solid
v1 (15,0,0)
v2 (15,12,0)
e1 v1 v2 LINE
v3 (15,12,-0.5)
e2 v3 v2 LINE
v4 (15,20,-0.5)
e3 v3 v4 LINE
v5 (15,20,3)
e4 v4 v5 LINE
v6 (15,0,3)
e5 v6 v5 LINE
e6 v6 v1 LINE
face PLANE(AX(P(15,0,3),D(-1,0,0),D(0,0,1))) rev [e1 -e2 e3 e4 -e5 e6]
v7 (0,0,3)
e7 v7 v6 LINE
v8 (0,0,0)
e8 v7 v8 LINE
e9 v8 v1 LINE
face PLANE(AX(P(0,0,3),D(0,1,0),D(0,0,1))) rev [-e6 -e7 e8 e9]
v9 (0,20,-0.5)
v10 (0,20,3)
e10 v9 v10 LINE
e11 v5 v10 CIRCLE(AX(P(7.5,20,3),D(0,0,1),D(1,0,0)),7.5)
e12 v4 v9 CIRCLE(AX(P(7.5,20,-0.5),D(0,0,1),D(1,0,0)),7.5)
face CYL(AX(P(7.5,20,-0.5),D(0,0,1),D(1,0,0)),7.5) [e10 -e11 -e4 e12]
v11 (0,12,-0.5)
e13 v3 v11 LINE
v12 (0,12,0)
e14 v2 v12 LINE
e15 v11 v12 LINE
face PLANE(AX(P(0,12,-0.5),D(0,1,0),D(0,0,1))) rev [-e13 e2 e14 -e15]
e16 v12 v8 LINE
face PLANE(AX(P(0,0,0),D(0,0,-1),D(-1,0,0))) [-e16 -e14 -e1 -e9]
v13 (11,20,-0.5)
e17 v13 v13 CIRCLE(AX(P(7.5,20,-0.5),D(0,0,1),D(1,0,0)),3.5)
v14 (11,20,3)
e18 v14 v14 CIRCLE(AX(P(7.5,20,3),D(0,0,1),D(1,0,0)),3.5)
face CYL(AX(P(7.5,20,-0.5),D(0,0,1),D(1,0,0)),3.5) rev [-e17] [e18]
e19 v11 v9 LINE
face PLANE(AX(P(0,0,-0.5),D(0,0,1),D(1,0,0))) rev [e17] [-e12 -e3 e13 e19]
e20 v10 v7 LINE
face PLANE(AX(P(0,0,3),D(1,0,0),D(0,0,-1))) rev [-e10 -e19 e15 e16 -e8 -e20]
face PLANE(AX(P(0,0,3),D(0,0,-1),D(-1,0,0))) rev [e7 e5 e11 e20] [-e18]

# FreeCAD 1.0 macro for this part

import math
import FreeCAD as App
import Part
import Sketcher
from FreeCAD import Vector
Q = App.Units.Quantity

doc = App.newDocument("Part")
params = doc.addObject("Spreadsheet::Sheet", "Params")
for row, (alias, value) in enumerate([
    ("sketch1_width", "15 mm"),
    ("sketch1_height", "12 mm"),
    ("pad1_length", "3 mm"),
    ("sketch2_diameter", "7 mm"),
    ("sketch2_radius", "7.5 mm"),
    ("sketch2_height", "8 mm"),
    ("pad2_length", "3.5 mm"),
], start=1):
    params.set(f"A{row}", alias)
    params.set(f"B{row}", "=" + value)
    params.setAlias(f"B{row}", alias)

body = doc.addObject("PartDesign::Body", "Body")

sketch1 = body.newObject("Sketcher::SketchObject", "Sketch")
sketch1.AttachmentSupport = (doc.getObject("XY_Plane"), [""])
sketch1.MapMode = "FlatFace"
sketch1.addGeometry(Part.LineSegment(Vector(0, 12, 0), Vector(0, 0, 0)), False)
sketch1.addGeometry(Part.LineSegment(Vector(0, 0, 0), Vector(15, 0, 0)), False)
sketch1.addGeometry(Part.LineSegment(Vector(15, 0, 0), Vector(15, 12, 0)), False)
sketch1.addGeometry(Part.LineSegment(Vector(15, 12, 0), Vector(0, 12, 0)), False)
sketch1.addConstraint(Sketcher.Constraint("Coincident", 0, 2, 1, 1))
sketch1.addConstraint(Sketcher.Constraint("Coincident", 1, 2, 2, 1))
sketch1.addConstraint(Sketcher.Constraint("Coincident", 2, 2, 3, 1))
sketch1.addConstraint(Sketcher.Constraint("Coincident", 3, 2, 0, 1))
sketch1.addConstraint(Sketcher.Constraint("Vertical", 0))
sketch1.addConstraint(Sketcher.Constraint("Horizontal", 1))
sketch1.addConstraint(Sketcher.Constraint("Vertical", 2))
sketch1.addConstraint(Sketcher.Constraint("Horizontal", 3))
sketch1.addConstraint(Sketcher.Constraint("Coincident", 0, 2, -1, 1))
sketch1.addConstraint(Sketcher.Constraint("DistanceX", 1, 1, 1, 2, Q("15 mm")))
sketch1.addConstraint(Sketcher.Constraint("DistanceY", 0, 2, 0, 1, Q("12 mm")))
sketch1.setExpression("Constraints[9]", "Params.sketch1_width")
sketch1.setExpression("Constraints[10]", "Params.sketch1_height")
pad1 = body.newObject("PartDesign::Pad", "Pad")
pad1.Profile = sketch1
pad1.setExpression("Length", "Params.pad1_length")

sketch2 = body.newObject("Sketcher::SketchObject", "Sketch001")
sketch2.AttachmentSupport = (doc.getObject("XY_Plane"), [""])
sketch2.MapMode = "FlatFace"
sketch2.AttachmentOffset = App.Placement(Vector(0, 0, 3), App.Rotation())
sketch2.addGeometry(Part.ArcOfCircle(Part.Circle(Vector(7.5, 20, 0), Vector(0, 0, 1), 7.5), math.radians(0), math.radians(180)), False)
sketch2.addGeometry(Part.LineSegment(Vector(0, 20, 0), Vector(0, 12, 0)), False)
sketch2.addGeometry(Part.LineSegment(Vector(0, 12, 0), Vector(15, 12, 0)), False)
sketch2.addGeometry(Part.LineSegment(Vector(15, 12, 0), Vector(15, 20, 0)), False)
sketch2.addGeometry(Part.Circle(Vector(7.5, 20, 0), Vector(0, 0, 1), 3.5), False)
sketch2.addConstraint(Sketcher.Constraint("Tangent", 0, 2, 1, 1))
sketch2.addConstraint(Sketcher.Constraint("Coincident", 1, 2, 2, 1))
sketch2.addConstraint(Sketcher.Constraint("Coincident", 2, 2, 3, 1))
sketch2.addConstraint(Sketcher.Constraint("Tangent", 3, 2, 0, 1))
sketch2.addConstraint(Sketcher.Constraint("Vertical", 1))
sketch2.addConstraint(Sketcher.Constraint("Horizontal", 2))
sketch2.addConstraint(Sketcher.Constraint("Vertical", 3))
sketch2.addConstraint(Sketcher.Constraint("Coincident", 4, 3, 0, 3))
sketch2.addConstraint(Sketcher.Constraint("PointOnObject", 0, 2, -2))
sketch2.addConstraint(Sketcher.Constraint("Diameter", 4, Q("7 mm")))
sketch2.addConstraint(Sketcher.Constraint("Radius", 0, Q("7.5 mm")))
sketch2.addConstraint(Sketcher.Constraint("DistanceY", 1, 2, 1, 1, Q("8 mm")))
sketch2.addConstraint(Sketcher.Constraint("DistanceY", -1, 1, 0, 3, Q("20 mm")))
sketch2.setExpression("Constraints[9]", "Params.sketch2_diameter")
sketch2.setExpression("Constraints[10]", "Params.sketch2_radius")
sketch2.setExpression("Constraints[11]", "Params.sketch2_height")
pad2 = body.newObject("PartDesign::Pad", "Pad001")
pad2.Profile = sketch2
pad2.setExpression("Length", "Params.pad2_length")
pad2.Reversed = True

doc.recompute()
